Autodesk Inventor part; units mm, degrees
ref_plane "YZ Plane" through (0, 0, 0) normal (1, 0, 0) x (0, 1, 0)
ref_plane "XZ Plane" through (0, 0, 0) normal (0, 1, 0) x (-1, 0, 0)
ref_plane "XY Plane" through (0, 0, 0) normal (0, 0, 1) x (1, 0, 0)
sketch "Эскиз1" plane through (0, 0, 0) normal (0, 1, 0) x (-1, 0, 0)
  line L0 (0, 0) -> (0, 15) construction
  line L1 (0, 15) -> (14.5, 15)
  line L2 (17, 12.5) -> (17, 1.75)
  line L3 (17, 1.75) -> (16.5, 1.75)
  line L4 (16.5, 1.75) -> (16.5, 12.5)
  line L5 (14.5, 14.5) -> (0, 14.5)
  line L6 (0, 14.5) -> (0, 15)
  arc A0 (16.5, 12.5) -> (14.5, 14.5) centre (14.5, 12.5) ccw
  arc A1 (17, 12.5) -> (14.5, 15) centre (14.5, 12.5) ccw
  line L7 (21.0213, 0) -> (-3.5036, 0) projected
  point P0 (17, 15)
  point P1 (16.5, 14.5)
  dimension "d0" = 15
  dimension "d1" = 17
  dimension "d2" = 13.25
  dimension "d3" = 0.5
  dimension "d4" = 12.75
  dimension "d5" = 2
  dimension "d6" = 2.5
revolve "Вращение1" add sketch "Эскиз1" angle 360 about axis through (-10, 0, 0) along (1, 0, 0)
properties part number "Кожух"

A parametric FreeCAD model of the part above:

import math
import FreeCAD as App
import Part
import Sketcher
from FreeCAD import Vector

doc = App.newDocument("Part")
body = doc.addObject("PartDesign::Body", "Body")

# Sketch on XZ plane
sketch1 = body.newObject("Sketcher::SketchObject", "Sketch")
sketch1.AttachmentSupport = (doc.getObject("XZ_Plane"), [""])
sketch1.MapMode = "FlatFace"
sketch1.addGeometry([
    Part.LineSegment(Vector(-14.5, 15, 0), Vector(0, 15, 0)),  # 0
    Part.LineSegment(Vector(0, 15, 0), Vector(0, 14.5, 0)),  # 1
    Part.LineSegment(Vector(0, 14.5, 0), Vector(-14.5, 14.5, 0)),  # 2
    Part.ArcOfCircle(Part.Circle(Vector(-14.5, 12.5, 0), Vector(0, 0, 1), 2), math.radians(90), math.radians(180)),  # 3
    Part.LineSegment(Vector(-16.5, 12.5, 0), Vector(-16.5, 1.8, 0)),  # 4
    Part.LineSegment(Vector(-16.5, 1.8, 0), Vector(-17, 1.8, 0)),  # 5
    Part.LineSegment(Vector(-17, 1.8, 0), Vector(-17, 12.5, 0)),  # 6
    Part.ArcOfCircle(Part.Circle(Vector(-14.5, 12.5, 0), Vector(0, 0, 1), 2.5), math.radians(90), math.radians(180)),  # 7
], False)
sketch1.addConstraint([
    Sketcher.Constraint("Coincident", 0, 2, 1, 1),
    Sketcher.Constraint("Coincident", 1, 2, 2, 1),
    Sketcher.Constraint("Tangent", 2, 2, 3, 1),
    Sketcher.Constraint("Tangent", 3, 2, 4, 1),
    Sketcher.Constraint("Coincident", 4, 2, 5, 1),
    Sketcher.Constraint("Coincident", 5, 2, 6, 1),
    Sketcher.Constraint("Tangent", 6, 2, 7, 2),
    Sketcher.Constraint("Tangent", 7, 1, 0, 1),
    Sketcher.Constraint("Horizontal", 0),
    Sketcher.Constraint("Vertical", 1),
    Sketcher.Constraint("Horizontal", 2),
    Sketcher.Constraint("Vertical", 4),
    Sketcher.Constraint("Horizontal", 5),
    Sketcher.Constraint("Vertical", 6),
    Sketcher.Constraint("Coincident", 7, 3, 3, 3),
    Sketcher.Constraint("PointOnObject", 0, 2, -2),
    Sketcher.Constraint("Radius", 3, 2.0),
    Sketcher.Constraint("Radius", 7, 2.5),
    Sketcher.Constraint("DistanceY", -1, 1, 0, 2, 15.0),
    Sketcher.Constraint("DistanceX", 5, 2, -1, 1, 17.0),
    Sketcher.Constraint("DistanceY", 4, 2, 2, 2, 12.75),
])
revolution = body.newObject("PartDesign::Revolution", "Revolution")
revolution.Profile = sketch1
revolution.ReferenceAxis = (sketch1, ["H_Axis"])
revolution.Angle = 360

doc.recompute()
